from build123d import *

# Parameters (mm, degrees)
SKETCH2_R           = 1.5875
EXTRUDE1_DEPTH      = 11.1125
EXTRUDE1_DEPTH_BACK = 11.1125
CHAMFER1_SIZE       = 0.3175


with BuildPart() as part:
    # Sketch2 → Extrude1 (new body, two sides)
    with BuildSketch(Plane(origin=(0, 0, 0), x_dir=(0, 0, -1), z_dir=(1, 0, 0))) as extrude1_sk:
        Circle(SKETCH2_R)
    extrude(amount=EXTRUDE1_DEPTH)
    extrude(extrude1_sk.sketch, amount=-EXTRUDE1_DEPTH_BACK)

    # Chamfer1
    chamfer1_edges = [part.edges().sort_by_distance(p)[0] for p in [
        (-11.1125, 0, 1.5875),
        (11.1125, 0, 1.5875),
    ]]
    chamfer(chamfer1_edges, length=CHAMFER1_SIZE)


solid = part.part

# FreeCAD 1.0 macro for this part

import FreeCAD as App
import Part
import Sketcher

V = App.Vector
Q = App.Units.Quantity


def edges_at(feature, points):
    """Names of the edges that pass closest to the given points."""
    edges = feature.Shape.Edges
    near = lambda p: min(range(len(edges)), key=lambda i: edges[i].distToShape(Part.Vertex(*p))[0])
    return sorted({f"Edge{near(p) + 1}" for p in points})

doc = App.newDocument("Part")
body = doc.addObject("PartDesign::Body", "Body")

# Sketch on YZ plane
sketch1 = body.newObject("Sketcher::SketchObject", "Sketch")
sketch1.AttachmentSupport = (doc.getObject("YZ_Plane"), [""])
sketch1.MapMode = "FlatFace"
sketch1.addGeometry(Part.Circle(V(0, 0, 0), V(0, 0, 1), 1.6), False)
sketch1.addConstraint([
    Sketcher.Constraint("Coincident", 0, 3, -1, 1),
    Sketcher.Constraint("Diameter", 0, Q("0.125 in")),
])
pad1 = body.newObject("PartDesign::Pad", "Pad")
pad1.Profile = sketch1
pad1.Type = "TwoLengths"
pad1.Length = Q("0.4375 in")
pad1.Length2 = Q("0.4375 in")
doc.recompute()

chamfer = body.newObject("PartDesign::Chamfer", "Chamfer")
chamfer.Base = (pad1, edges_at(pad1, [(-11.113, 0, 1.587), (11.113, 0, 1.587)]))
chamfer.Size = Q("0.0125 in")

doc.recompute()
